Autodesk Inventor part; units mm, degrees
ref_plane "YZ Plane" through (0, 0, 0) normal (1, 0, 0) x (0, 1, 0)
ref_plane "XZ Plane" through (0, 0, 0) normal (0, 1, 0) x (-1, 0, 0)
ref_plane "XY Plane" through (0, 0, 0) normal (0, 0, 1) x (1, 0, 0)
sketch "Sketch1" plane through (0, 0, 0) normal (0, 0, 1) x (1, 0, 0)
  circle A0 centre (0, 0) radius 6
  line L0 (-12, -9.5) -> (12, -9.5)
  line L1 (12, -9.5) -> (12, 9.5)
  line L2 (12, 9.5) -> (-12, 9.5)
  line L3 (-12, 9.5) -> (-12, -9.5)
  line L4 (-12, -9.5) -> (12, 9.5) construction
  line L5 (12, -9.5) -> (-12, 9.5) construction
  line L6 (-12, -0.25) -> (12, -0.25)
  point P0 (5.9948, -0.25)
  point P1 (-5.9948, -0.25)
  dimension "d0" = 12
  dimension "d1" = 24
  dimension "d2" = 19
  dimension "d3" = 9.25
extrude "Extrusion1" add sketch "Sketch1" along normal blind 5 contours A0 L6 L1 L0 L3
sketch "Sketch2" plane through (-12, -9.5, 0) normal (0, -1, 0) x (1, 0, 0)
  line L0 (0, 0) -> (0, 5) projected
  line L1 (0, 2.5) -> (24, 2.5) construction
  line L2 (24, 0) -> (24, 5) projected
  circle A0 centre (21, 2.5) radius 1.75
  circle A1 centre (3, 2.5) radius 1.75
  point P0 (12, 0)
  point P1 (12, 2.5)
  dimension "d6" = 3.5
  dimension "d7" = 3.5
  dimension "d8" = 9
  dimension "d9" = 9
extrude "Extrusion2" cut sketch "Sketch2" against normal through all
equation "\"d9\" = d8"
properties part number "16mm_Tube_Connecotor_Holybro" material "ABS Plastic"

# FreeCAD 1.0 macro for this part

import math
import FreeCAD as App
import Part
import Sketcher

V = App.Vector
Q = App.Units.Quantity

doc = App.newDocument("Part")
body = doc.addObject("PartDesign::Body", "Body")

# Sketch on XY plane
sketch1 = body.newObject("Sketcher::SketchObject", "Sketch")
sketch1.AttachmentSupport = (doc.getObject("XY_Plane"), [""])
sketch1.MapMode = "FlatFace"
sketch1.addGeometry([
    Part.ArcOfCircle(Part.Circle(V(0, 0, 0), V(0, 0, 1), 6), math.radians(-178), math.radians(-2)),  # 0
    Part.LineSegment(V(-6, 0, 0), V(-12, 0, 0)),  # 1
    Part.LineSegment(V(-12, 0, 0), V(-12, -10, 0)),  # 2
    Part.LineSegment(V(-12, -10, 0), V(12, -10, 0)),  # 3
    Part.LineSegment(V(12, -10, 0), V(12, 0, 0)),  # 4
    Part.LineSegment(V(12, 0, 0), V(6, 0, 0)),  # 5
], False)
sketch1.addConstraint([
    Sketcher.Constraint("Coincident", 0, 1, 1, 1),
    Sketcher.Constraint("Coincident", 1, 2, 2, 1),
    Sketcher.Constraint("Coincident", 2, 2, 3, 1),
    Sketcher.Constraint("Coincident", 3, 2, 4, 1),
    Sketcher.Constraint("Coincident", 4, 2, 5, 1),
    Sketcher.Constraint("Coincident", 5, 2, 0, 2),
    Sketcher.Constraint("Horizontal", 1),
    Sketcher.Constraint("Vertical", 2),
    Sketcher.Constraint("Horizontal", 3),
    Sketcher.Constraint("Vertical", 4),
    Sketcher.Constraint("Horizontal", 5),
    Sketcher.Constraint("Coincident", 0, 3, -1, 1),
    Sketcher.Constraint("Symmetric", 1, 2, 4, 2, -2),
    Sketcher.Constraint("Radius", 0, Q("6 mm")),
    Sketcher.Constraint("DistanceX", 3, 1, 3, 2, Q("24 mm")),
    Sketcher.Constraint("DistanceY", 2, 2, 2, 1, Q("9.25 mm")),
    Sketcher.Constraint("DistanceY", 2, 2, -1, 1, Q("9.5 mm")),
])
pad1 = body.newObject("PartDesign::Pad", "Pad")
pad1.Profile = sketch1
pad1.Length = 5

# Sketch on XZ plane
sketch2 = body.newObject("Sketcher::SketchObject", "Sketch001")
sketch2.AttachmentSupport = (doc.getObject("XZ_Plane"), [""])
sketch2.MapMode = "FlatFace"
sketch2.AttachmentOffset = App.Placement(V(0, 0, 9.5), App.Rotation())
sketch2.addGeometry([
    Part.Circle(V(9, 2.5, 0), V(0, 0, 1), 1.8),
    Part.Circle(V(-9, 2.5, 0), V(0, 0, 1), 1.8),
], False)
sketch2.addConstraint([
    Sketcher.Constraint("Equal", 0, 1),
    Sketcher.Constraint("Symmetric", 0, 3, 1, 3, -2),
    Sketcher.Constraint("Diameter", 0, Q("3.5 mm")),
    Sketcher.Constraint("DistanceX", -1, 1, 0, 3, Q("9 mm")),
    Sketcher.Constraint("DistanceY", -1, 1, 0, 3, Q("2.5 mm")),
])
pocket1 = body.newObject("PartDesign::Pocket", "Pocket")
pocket1.Profile = sketch2
pocket1.Type = "ThroughAll"

doc.recompute()
